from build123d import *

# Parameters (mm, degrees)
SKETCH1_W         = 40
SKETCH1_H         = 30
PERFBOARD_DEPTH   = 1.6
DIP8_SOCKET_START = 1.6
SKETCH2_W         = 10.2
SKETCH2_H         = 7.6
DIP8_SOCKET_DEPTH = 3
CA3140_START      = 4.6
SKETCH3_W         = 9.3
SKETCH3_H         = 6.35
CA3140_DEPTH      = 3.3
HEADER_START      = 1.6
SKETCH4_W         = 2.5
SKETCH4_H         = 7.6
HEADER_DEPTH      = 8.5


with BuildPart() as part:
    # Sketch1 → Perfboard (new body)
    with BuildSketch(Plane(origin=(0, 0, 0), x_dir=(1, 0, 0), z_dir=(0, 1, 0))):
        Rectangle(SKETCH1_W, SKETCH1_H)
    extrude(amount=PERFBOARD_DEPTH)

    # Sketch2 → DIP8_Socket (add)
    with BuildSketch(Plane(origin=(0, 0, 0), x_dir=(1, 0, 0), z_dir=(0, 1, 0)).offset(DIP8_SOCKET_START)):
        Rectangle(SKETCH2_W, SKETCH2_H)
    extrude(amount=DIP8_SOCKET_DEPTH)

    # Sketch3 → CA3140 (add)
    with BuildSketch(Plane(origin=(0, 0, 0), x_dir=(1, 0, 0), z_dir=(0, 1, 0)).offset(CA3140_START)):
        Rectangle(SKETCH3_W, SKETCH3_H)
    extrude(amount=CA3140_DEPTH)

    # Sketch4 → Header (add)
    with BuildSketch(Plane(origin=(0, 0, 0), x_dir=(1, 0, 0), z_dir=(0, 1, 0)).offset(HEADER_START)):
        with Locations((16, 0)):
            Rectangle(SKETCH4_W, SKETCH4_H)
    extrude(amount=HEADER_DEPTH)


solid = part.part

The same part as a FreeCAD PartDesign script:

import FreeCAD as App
import Part
import Sketcher

V = App.Vector


def add_polygon(sketch, points):
    """Adds a closed chain of lines whose ends are joined by coincident constraints."""
    first, n = sketch.GeometryCount, len(points)
    for a, b in zip(points, points[1:] + points[:1]):
        sketch.addGeometry(Part.LineSegment(App.Vector(*a, 0), App.Vector(*b, 0)), False)
    for i in range(n):
        sketch.addConstraint(Sketcher.Constraint("Coincident", first + i, 2, first + (i + 1) % n, 1))

doc = App.newDocument("Part")
body = doc.addObject("PartDesign::Body", "Body")

sketch1 = doc.addObject("Sketcher::SketchObject", "Sketch")
body.addObject(sketch1)
sketch1.AttachmentSupport = (doc.XZ_Plane, [""])
sketch1.MapMode = "FlatFace"
add_polygon(sketch1, [(-20, -15), (-20, 15), (20, 15), (20, -15)])
sketch1.addConstraint(Sketcher.Constraint("Vertical", 0))
sketch1.addConstraint(Sketcher.Constraint("Horizontal", 1))
sketch1.addConstraint(Sketcher.Constraint("Vertical", 2))
sketch1.addConstraint(Sketcher.Constraint("Horizontal", 3))
sketch1.addConstraint(Sketcher.Constraint("Symmetric", 0, 2, 2, 2, -1, 1))
sketch1.addConstraint(Sketcher.Constraint("DistanceX", 1, 1, 1, 2, 40.0))
sketch1.addConstraint(Sketcher.Constraint("DistanceY", 0, 1, 0, 2, 30.0))
pad1 = doc.addObject("PartDesign::Pad", "Pad")
body.addObject(pad1)
pad1.Profile = sketch1
pad1.Length = 1.6
pad1.Reversed = True

sketch2 = doc.addObject("Sketcher::SketchObject", "Sketch001")
body.addObject(sketch2)
sketch2.AttachmentSupport = (doc.XZ_Plane, [""])
sketch2.MapMode = "FlatFace"
sketch2.AttachmentOffset = App.Placement(V(0, 0, -1.6), App.Rotation())
add_polygon(sketch2, [(-5, -4), (-5, 4), (5, 4), (5, -4)])
sketch2.addConstraint(Sketcher.Constraint("Vertical", 0))
sketch2.addConstraint(Sketcher.Constraint("Horizontal", 1))
sketch2.addConstraint(Sketcher.Constraint("Vertical", 2))
sketch2.addConstraint(Sketcher.Constraint("Horizontal", 3))
sketch2.addConstraint(Sketcher.Constraint("Symmetric", 0, 2, 2, 2, -1, 1))
sketch2.addConstraint(Sketcher.Constraint("DistanceX", 1, 1, 1, 2, 10.2))
sketch2.addConstraint(Sketcher.Constraint("DistanceY", 0, 1, 0, 2, 7.6))
pad2 = doc.addObject("PartDesign::Pad", "Pad001")
body.addObject(pad2)
pad2.Profile = sketch2
pad2.Length = 3
pad2.Reversed = True

sketch3 = doc.addObject("Sketcher::SketchObject", "Sketch002")
body.addObject(sketch3)
sketch3.AttachmentSupport = (doc.XZ_Plane, [""])
sketch3.MapMode = "FlatFace"
sketch3.AttachmentOffset = App.Placement(V(0, 0, -4.6), App.Rotation())
add_polygon(sketch3, [(-5, -3), (-5, 3), (5, 3), (5, -3)])
sketch3.addConstraint(Sketcher.Constraint("Vertical", 0))
sketch3.addConstraint(Sketcher.Constraint("Horizontal", 1))
sketch3.addConstraint(Sketcher.Constraint("Vertical", 2))
sketch3.addConstraint(Sketcher.Constraint("Horizontal", 3))
sketch3.addConstraint(Sketcher.Constraint("Symmetric", 0, 2, 2, 2, -1, 1))
sketch3.addConstraint(Sketcher.Constraint("DistanceX", 1, 1, 1, 2, 9.3))
sketch3.addConstraint(Sketcher.Constraint("DistanceY", 0, 1, 0, 2, 6.35))
pad3 = doc.addObject("PartDesign::Pad", "Pad002")
body.addObject(pad3)
pad3.Profile = sketch3
pad3.Length = 3.3
pad3.Reversed = True

sketch4 = doc.addObject("Sketcher::SketchObject", "Sketch003")
body.addObject(sketch4)
sketch4.AttachmentSupport = (doc.XZ_Plane, [""])
sketch4.MapMode = "FlatFace"
sketch4.AttachmentOffset = App.Placement(V(0, 0, -1.6), App.Rotation())
add_polygon(sketch4, [(14.8, -3.8), (14.8, 3.8), (17.2, 3.8), (17.2, -3.8)])
sketch4.addConstraint(Sketcher.Constraint("Vertical", 0))
sketch4.addConstraint(Sketcher.Constraint("Horizontal", 1))
sketch4.addConstraint(Sketcher.Constraint("Vertical", 2))
sketch4.addConstraint(Sketcher.Constraint("Horizontal", 3))
sketch4.addConstraint(Sketcher.Constraint("DistanceX", 1, 1, 1, 2, 2.5))
sketch4.addConstraint(Sketcher.Constraint("DistanceY", 0, 1, 0, 2, 7.6))
sketch4.addConstraint(Sketcher.Constraint("DistanceY", -1, 1, 0, 2, 3.8))
sketch4.addConstraint(Sketcher.Constraint("DistanceX", -1, 1, 0, 2, 14.75))
pad4 = doc.addObject("PartDesign::Pad", "Pad003")
body.addObject(pad4)
pad4.Profile = sketch4
pad4.Length = 8.5
pad4.Reversed = True

doc.recompute()
